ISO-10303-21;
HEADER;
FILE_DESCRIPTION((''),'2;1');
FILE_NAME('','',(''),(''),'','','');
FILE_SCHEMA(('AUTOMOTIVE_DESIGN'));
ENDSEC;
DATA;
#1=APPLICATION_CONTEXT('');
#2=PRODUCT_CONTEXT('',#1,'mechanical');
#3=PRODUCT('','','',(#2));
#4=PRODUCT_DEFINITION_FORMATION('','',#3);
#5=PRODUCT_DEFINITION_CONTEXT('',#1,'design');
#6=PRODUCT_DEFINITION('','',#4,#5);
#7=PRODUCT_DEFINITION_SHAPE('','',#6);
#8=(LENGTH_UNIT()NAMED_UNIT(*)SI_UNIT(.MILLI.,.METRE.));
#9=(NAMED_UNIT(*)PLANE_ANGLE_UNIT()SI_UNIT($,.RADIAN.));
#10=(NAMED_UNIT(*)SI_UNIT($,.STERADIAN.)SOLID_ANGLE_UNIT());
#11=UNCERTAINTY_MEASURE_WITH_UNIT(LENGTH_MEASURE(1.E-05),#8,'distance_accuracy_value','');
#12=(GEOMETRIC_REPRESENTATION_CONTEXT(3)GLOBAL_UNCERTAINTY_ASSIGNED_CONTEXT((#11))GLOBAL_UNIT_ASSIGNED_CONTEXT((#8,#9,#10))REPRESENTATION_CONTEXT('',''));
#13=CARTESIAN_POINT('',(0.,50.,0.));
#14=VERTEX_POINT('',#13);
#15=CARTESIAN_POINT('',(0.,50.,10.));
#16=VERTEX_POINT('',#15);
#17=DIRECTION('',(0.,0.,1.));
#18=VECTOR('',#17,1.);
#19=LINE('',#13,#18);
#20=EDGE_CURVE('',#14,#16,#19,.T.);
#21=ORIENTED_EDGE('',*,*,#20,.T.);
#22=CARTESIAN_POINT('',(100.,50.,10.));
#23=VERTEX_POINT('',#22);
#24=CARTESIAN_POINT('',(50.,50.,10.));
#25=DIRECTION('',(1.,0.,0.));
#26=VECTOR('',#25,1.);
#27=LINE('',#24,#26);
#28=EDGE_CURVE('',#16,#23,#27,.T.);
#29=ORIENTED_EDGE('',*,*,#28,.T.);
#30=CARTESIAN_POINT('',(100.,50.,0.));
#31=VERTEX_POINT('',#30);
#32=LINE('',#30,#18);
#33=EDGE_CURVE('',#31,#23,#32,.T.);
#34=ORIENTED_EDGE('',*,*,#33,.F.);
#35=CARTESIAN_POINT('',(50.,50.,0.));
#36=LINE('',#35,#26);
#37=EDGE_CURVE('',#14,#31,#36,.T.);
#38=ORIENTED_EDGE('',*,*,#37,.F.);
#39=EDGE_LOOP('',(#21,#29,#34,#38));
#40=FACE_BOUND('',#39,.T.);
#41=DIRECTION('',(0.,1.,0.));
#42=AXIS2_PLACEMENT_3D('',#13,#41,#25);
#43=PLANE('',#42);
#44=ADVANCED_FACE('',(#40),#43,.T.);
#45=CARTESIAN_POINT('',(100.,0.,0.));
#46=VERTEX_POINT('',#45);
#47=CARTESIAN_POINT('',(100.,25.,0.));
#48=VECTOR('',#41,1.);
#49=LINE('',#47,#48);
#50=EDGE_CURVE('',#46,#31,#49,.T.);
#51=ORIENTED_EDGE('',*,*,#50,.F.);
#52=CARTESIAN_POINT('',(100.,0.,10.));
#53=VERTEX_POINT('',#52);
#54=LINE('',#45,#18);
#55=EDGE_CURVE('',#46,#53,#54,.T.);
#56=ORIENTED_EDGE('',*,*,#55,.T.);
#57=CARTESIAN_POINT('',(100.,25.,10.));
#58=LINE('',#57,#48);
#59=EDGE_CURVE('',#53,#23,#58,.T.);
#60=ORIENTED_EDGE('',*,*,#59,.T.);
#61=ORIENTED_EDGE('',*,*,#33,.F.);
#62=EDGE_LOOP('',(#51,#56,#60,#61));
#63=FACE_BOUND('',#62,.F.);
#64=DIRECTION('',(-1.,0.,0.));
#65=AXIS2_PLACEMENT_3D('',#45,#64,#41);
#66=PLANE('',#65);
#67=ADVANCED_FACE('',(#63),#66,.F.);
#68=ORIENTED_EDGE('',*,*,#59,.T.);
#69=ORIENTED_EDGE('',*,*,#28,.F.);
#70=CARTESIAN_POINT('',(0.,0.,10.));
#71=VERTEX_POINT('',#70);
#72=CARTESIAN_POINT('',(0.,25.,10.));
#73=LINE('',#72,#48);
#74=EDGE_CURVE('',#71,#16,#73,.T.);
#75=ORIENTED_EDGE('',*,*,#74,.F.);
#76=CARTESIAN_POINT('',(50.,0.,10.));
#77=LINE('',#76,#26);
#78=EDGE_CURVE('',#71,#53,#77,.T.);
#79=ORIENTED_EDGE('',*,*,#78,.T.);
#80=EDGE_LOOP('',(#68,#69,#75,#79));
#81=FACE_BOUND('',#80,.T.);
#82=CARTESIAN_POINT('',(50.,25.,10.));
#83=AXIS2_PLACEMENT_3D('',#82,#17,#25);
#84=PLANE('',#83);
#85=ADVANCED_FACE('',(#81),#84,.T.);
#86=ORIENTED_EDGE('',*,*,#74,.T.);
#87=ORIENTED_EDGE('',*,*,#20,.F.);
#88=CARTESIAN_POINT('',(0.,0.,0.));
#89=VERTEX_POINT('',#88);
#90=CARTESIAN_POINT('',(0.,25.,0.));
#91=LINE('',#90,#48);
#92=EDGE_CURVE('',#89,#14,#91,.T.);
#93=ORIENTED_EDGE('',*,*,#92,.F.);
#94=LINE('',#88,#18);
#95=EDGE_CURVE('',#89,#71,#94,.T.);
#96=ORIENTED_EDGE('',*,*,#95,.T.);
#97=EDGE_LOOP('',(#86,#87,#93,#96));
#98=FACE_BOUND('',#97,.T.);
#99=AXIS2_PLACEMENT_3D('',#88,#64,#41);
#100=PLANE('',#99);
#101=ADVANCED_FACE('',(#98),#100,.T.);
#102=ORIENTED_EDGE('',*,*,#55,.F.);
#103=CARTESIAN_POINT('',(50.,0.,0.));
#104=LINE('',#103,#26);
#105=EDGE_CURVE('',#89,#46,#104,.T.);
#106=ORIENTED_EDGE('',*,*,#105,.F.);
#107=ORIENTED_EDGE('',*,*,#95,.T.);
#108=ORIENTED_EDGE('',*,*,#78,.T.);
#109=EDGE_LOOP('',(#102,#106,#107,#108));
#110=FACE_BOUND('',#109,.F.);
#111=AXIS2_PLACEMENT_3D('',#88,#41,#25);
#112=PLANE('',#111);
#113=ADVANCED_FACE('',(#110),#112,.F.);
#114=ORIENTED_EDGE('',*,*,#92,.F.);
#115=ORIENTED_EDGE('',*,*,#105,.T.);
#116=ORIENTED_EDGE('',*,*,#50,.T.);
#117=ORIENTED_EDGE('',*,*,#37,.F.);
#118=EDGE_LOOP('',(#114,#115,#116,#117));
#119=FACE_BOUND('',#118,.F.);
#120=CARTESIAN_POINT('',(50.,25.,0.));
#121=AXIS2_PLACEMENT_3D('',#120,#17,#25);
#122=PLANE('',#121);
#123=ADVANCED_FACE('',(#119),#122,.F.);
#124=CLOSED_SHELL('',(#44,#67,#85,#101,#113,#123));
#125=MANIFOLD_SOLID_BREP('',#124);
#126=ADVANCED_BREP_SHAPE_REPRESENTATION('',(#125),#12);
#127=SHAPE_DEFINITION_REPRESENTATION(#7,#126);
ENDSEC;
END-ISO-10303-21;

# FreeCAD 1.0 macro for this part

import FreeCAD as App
import Part
import Sketcher

doc = App.newDocument("Part")
body = doc.addObject("PartDesign::Body", "Body")

sketch1 = body.newObject("Sketcher::SketchObject", "Sketch")
sketch1.AttachmentSupport = (doc.getObject("XY_Plane"), [""])
sketch1.MapMode = "FlatFace"
sketch1.addGeometry([
    Part.LineSegment(App.Vector(0, 50, 0), App.Vector(0, 0, 0)),
    Part.LineSegment(App.Vector(0, 0, 0), App.Vector(100, 0, 0)),
    Part.LineSegment(App.Vector(100, 0, 0), App.Vector(100, 50, 0)),
    Part.LineSegment(App.Vector(100, 50, 0), App.Vector(0, 50, 0)),
], False)
sketch1.addConstraint([
    Sketcher.Constraint("Coincident", 0, 2, 1, 1),
    Sketcher.Constraint("Coincident", 1, 2, 2, 1),
    Sketcher.Constraint("Coincident", 2, 2, 3, 1),
    Sketcher.Constraint("Coincident", 3, 2, 0, 1),
    Sketcher.Constraint("Vertical", 0),
    Sketcher.Constraint("Horizontal", 1),
    Sketcher.Constraint("Vertical", 2),
    Sketcher.Constraint("Horizontal", 3),
    Sketcher.Constraint("Coincident", 0, 2, -1, 1),
    Sketcher.Constraint("DistanceX", 1, 1, 1, 2, 100.0),
    Sketcher.Constraint("DistanceY", 0, 2, 0, 1, 50.0),
])
pad1 = body.newObject("PartDesign::Pad", "Pad")
pad1.Profile = sketch1
pad1.Length = 10

doc.recompute()
